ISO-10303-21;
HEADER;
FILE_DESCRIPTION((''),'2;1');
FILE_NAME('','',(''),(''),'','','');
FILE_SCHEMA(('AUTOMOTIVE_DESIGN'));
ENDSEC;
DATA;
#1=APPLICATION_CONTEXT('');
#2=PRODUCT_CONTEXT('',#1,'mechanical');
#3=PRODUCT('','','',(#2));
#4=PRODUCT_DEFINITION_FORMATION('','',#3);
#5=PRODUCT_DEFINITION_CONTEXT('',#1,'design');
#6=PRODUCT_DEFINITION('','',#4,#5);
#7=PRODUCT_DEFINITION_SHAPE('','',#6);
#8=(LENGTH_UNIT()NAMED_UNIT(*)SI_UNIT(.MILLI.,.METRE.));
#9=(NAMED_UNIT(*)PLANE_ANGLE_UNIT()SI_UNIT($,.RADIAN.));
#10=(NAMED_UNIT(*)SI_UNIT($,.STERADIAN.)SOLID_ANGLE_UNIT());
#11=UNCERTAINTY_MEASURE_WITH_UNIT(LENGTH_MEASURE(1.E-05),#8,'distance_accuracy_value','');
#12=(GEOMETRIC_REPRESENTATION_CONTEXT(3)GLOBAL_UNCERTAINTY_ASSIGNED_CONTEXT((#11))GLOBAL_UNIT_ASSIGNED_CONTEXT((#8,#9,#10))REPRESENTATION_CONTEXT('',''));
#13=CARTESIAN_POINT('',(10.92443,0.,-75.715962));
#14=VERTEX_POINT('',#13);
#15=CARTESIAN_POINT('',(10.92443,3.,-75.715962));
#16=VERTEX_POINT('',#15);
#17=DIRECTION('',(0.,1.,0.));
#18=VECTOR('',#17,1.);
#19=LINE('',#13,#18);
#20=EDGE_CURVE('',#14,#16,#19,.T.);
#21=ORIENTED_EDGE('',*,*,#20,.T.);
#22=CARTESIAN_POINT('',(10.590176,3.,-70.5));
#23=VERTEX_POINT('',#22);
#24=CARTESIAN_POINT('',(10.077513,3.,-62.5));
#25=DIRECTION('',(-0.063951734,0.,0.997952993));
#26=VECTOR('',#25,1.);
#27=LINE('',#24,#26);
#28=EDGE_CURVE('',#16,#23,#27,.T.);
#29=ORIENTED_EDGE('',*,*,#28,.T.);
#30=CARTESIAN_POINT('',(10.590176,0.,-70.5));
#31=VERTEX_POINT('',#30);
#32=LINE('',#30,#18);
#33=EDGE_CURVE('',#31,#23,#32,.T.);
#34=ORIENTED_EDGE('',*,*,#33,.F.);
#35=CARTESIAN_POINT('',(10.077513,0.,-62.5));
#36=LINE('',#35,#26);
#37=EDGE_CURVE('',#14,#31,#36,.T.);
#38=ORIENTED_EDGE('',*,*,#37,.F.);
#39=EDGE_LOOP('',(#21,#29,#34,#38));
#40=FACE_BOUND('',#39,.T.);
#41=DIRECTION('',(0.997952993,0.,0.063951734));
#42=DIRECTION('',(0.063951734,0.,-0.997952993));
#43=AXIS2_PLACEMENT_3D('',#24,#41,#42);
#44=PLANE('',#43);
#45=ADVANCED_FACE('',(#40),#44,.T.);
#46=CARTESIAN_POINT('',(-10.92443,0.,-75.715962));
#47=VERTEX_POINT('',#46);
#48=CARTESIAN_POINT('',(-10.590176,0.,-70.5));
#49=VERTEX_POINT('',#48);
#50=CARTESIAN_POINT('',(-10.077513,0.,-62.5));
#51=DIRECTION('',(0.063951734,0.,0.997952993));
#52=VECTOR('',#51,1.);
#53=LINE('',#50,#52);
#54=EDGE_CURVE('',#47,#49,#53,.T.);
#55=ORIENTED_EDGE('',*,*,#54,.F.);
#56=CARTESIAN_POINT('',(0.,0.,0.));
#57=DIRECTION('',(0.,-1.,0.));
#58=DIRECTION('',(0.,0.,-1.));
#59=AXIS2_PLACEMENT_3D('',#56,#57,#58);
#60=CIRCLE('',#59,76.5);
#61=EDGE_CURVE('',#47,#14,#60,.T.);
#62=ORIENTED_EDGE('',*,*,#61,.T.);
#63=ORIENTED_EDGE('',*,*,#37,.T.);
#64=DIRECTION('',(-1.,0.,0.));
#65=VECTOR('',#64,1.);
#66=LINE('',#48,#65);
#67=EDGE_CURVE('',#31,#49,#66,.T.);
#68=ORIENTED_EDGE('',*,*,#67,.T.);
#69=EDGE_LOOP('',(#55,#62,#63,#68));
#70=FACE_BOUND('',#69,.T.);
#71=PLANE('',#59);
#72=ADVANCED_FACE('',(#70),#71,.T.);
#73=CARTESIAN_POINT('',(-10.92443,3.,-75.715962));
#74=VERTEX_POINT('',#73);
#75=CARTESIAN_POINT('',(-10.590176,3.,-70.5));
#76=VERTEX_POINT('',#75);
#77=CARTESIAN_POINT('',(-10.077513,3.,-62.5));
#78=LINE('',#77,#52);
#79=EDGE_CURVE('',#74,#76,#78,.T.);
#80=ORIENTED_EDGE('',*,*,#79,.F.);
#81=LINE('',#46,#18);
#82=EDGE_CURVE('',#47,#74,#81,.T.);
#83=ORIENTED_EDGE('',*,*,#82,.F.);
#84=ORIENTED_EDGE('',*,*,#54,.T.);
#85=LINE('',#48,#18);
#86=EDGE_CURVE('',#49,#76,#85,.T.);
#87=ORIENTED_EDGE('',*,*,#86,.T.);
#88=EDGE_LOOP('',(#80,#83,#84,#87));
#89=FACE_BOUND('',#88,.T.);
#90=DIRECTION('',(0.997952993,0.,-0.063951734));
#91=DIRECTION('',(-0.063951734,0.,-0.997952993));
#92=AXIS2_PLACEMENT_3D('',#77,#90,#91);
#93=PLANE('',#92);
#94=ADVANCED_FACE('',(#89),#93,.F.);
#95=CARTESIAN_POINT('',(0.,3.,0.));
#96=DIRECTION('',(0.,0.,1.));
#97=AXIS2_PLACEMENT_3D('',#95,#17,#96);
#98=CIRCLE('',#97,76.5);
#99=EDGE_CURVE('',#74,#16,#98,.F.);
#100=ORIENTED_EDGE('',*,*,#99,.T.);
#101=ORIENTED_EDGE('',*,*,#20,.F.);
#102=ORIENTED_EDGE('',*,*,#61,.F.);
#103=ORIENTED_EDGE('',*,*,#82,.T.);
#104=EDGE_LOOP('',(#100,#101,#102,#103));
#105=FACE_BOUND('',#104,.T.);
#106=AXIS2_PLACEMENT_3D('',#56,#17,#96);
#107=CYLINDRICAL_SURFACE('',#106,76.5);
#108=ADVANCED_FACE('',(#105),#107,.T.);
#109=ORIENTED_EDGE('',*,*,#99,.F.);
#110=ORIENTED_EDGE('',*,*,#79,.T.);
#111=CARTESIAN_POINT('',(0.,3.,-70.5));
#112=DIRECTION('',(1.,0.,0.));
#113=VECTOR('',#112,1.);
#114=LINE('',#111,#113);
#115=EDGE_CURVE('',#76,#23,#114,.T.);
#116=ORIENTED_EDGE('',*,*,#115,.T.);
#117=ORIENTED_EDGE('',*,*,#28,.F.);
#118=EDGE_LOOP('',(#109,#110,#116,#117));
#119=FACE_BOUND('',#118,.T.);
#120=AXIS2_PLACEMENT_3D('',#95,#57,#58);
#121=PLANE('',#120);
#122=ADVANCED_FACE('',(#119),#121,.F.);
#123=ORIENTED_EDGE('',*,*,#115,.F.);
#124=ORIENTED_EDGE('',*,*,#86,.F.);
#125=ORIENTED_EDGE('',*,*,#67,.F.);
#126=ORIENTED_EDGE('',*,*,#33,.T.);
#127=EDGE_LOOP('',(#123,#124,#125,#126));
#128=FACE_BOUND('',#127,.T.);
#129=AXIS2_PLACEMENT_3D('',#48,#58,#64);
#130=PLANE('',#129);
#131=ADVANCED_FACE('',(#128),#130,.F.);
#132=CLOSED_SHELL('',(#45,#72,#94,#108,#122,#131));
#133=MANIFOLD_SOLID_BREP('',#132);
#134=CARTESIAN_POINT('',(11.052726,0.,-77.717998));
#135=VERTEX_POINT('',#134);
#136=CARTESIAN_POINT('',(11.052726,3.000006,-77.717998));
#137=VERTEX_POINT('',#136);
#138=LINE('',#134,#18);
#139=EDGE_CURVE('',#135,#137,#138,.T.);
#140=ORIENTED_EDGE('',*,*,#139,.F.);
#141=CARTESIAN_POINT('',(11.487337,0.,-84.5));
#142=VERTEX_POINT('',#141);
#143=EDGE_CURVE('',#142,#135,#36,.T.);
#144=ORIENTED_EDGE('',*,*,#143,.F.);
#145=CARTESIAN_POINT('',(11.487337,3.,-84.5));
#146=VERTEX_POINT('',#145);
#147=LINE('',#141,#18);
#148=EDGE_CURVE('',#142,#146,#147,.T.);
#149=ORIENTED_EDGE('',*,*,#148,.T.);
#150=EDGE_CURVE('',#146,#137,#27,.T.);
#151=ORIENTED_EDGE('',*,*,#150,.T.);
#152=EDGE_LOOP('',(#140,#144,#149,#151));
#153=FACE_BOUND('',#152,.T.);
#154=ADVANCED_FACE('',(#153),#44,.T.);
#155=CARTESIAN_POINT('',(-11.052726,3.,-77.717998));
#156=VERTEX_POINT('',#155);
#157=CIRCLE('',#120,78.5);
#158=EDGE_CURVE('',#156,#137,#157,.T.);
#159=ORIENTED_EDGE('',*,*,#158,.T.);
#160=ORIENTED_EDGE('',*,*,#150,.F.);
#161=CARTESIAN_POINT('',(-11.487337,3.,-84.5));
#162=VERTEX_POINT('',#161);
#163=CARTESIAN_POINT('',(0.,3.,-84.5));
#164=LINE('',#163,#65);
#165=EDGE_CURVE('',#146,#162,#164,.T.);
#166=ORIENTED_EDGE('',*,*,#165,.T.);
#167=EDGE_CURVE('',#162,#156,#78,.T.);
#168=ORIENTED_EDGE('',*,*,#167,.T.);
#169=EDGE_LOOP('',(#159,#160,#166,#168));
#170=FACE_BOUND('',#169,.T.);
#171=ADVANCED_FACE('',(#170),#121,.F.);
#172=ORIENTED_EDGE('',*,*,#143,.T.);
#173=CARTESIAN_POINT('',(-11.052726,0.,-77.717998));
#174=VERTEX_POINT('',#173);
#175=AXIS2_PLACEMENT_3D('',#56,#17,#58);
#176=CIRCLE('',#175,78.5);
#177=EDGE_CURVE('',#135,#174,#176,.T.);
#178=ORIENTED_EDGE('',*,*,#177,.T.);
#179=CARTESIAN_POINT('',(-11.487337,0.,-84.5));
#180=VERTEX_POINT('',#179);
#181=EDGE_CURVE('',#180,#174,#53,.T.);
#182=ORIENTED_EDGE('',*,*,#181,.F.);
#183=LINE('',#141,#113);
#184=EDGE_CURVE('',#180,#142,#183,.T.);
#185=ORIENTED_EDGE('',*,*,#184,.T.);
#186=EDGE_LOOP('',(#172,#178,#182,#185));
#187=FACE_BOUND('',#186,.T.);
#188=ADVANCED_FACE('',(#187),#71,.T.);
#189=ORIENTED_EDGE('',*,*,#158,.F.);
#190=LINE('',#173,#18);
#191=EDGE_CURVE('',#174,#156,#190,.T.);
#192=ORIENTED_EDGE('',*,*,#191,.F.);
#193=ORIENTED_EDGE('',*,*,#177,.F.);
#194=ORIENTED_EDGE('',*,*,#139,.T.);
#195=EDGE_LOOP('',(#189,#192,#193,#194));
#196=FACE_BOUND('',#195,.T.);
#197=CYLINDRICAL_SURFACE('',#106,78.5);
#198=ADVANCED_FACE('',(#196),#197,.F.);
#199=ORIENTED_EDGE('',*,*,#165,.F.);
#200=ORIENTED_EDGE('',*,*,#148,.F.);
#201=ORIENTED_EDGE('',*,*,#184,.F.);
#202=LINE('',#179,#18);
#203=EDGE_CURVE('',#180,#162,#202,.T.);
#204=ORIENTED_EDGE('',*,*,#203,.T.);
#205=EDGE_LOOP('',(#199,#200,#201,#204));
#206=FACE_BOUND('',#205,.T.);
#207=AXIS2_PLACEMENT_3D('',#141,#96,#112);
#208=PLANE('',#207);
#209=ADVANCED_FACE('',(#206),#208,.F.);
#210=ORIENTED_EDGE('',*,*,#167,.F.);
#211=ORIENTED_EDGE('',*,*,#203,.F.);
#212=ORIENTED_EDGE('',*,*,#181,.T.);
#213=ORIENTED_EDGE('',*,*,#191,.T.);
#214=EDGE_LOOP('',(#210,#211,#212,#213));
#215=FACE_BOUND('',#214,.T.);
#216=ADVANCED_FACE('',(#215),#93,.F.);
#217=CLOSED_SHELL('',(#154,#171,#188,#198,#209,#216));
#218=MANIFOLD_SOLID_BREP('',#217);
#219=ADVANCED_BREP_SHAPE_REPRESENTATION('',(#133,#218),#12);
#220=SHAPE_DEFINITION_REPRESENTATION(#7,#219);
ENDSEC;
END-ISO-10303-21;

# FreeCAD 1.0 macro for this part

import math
import FreeCAD as App
import Part
import Sketcher
Q = App.Units.Quantity


def add_polygon(sketch, points):
    """Adds a closed chain of lines whose ends are joined by coincident constraints."""
    first, n = sketch.GeometryCount, len(points)
    for a, b in zip(points, points[1:] + points[:1]):
        sketch.addGeometry(Part.LineSegment(App.Vector(*a, 0), App.Vector(*b, 0)), False)
    for i in range(n):
        sketch.addConstraint(Sketcher.Constraint("Coincident", first + i, 2, first + (i + 1) % n, 1))

doc = App.newDocument("Part")
body = doc.addObject("PartDesign::Body", "Body")
body.AllowCompound = True

# Sketch on XZ plane
sketch1 = doc.addObject("Sketcher::SketchObject", "Sketch")
body.addObject(sketch1)
sketch1.AttachmentSupport = (doc.XZ_Plane, [""])
sketch1.MapMode = "FlatFace"
add_polygon(sketch1, [(0, -92), (-12, -92), (-10, -62), (0, -62)])  # lines 0-3
sketch1.addConstraint([
    Sketcher.Constraint("Horizontal", 0),
    Sketcher.Constraint("Horizontal", 2),
    Sketcher.Constraint("Vertical", 3),
    Sketcher.Constraint("PointOnObject", 2, 2, -2),
    Sketcher.Constraint("DistanceX", 0, 2, 0, 1, Q("12 mm")),
    Sketcher.Constraint("DistanceY", 3, 2, 3, 1, Q("30 mm")),
    Sketcher.Constraint("DistanceY", 0, 2, -1, 1, Q("92.5 mm")),
    Sketcher.Constraint("DistanceX", 2, 1, 2, 2, Q("10.077513 mm")),
])
pad1 = doc.addObject("PartDesign::Pad", "Pad")
body.addObject(pad1)
pad1.Profile = sketch1
pad1.Length = 3
pad1.Reversed = True
doc.recompute()

mirrored = doc.addObject("PartDesign::Mirrored", "Mirrored")
body.addObject(mirrored)
mirrored.Originals = [pad1]
mirrored.MirrorPlane = (doc.YZ_Plane, [""])
body.Tip = mirrored

# Sketch on XZ plane
sketch2 = doc.addObject("Sketcher::SketchObject", "Sketch001")
body.addObject(sketch2)
sketch2.AttachmentSupport = (doc.XZ_Plane, [""])
sketch2.MapMode = "FlatFace"
sketch2.AttachmentOffset = App.Placement(App.Vector(0, 0, -3), App.Rotation())
add_polygon(sketch2, [(11, -70), (-11, -70), (-10, -62), (10, -62)])  # lines 0-3
add_polygon(sketch2, [(-11, -84), (11, -84), (12, -92), (-12, -92)])  # lines 4-7
sketch2.addConstraint([
    Sketcher.Constraint("Horizontal", 0),
    Sketcher.Constraint("Horizontal", 2),
    Sketcher.Constraint("Horizontal", 4),
    Sketcher.Constraint("Horizontal", 6),
    Sketcher.Constraint("Parallel", 3, 5),
    Sketcher.Constraint("Parallel", 1, 7),
    Sketcher.Constraint("Equal", 1, 3),
    Sketcher.Constraint("Equal", 3, 5),
    Sketcher.Constraint("DistanceX", 6, 2, 6, 1, Q("24 mm")),
    Sketcher.Constraint("DistanceX", -1, 1, 5, 2, Q("12 mm")),
    Sketcher.Constraint("DistanceY", 0, 2, 1, 2, Q("8 mm")),
    Sketcher.Constraint("DistanceY", 4, 2, 3, 2, Q("14 mm")),
    Sketcher.Constraint("DistanceY", 0, 2, -1, 1, Q("70.5 mm")),
    Sketcher.Constraint("DistanceX", 0, 2, 0, 1, Q("21.180352 mm")),
    Sketcher.Constraint("Distance", 1, Q("8.01641 mm")),
    Sketcher.Constraint("DistanceX", 3, 2, 4, 2, Q("0.897161 mm")),
])
pocket1 = doc.addObject("PartDesign::Pocket", "Pocket")
body.addObject(pocket1)
pocket1.Profile = sketch2
pocket1.Type = "ThroughAll"
pocket1.Midplane = True

# Sketch on XZ plane
sketch3 = doc.addObject("Sketcher::SketchObject", "Sketch002")
body.addObject(sketch3)
sketch3.AttachmentSupport = (doc.XZ_Plane, [""])
sketch3.MapMode = "FlatFace"
sketch3.AttachmentOffset = App.Placement(App.Vector(0, 0, -3), App.Rotation())
sketch3.addGeometry([
    Part.LineSegment(App.Vector(-11.2, -77.7, 0), App.Vector(-10.9, -75.7, 0)),
    Part.ArcOfCircle(Part.Circle(App.Vector(0, 0, 0), App.Vector(0, 0, 1), 76.5), math.radians(-98.21), math.radians(-81.79)),
    Part.LineSegment(App.Vector(10.9, -75.7, 0), App.Vector(11.1, -77.7, 0)),
    Part.ArcOfCircle(Part.Circle(App.Vector(0, 0, 0), App.Vector(0, 0, 1), 78.5), math.radians(-98.2), math.radians(-81.91)),
], False)
sketch3.addConstraint([
    Sketcher.Constraint("Coincident", 0, 2, 1, 1),
    Sketcher.Constraint("Coincident", 1, 2, 2, 1),
    Sketcher.Constraint("Coincident", 2, 2, 3, 2),
    Sketcher.Constraint("Coincident", 3, 1, 0, 1),
    Sketcher.Constraint("Coincident", 1, 3, -1, 1),
    Sketcher.Constraint("Coincident", 3, 3, -1, 1),
    Sketcher.Constraint("Horizontal", 0, 2, 1, 2),
    Sketcher.Constraint("Radius", 1, Q("76.5 mm")),
    Sketcher.Constraint("Radius", 3, Q("78.5 mm")),
    Sketcher.Constraint("DistanceY", 2, 2, -1, 1, Q("77.717998 mm")),
    Sketcher.Constraint("DistanceX", 0, 2, -1, 1, Q("10.92443 mm")),
    Sketcher.Constraint("DistanceY", 3, 1, 0, 2, Q("1.981161 mm")),
])
pocket2 = doc.addObject("PartDesign::Pocket", "Pocket001")
body.addObject(pocket2)
pocket2.Profile = sketch3
pocket2.Type = "ThroughAll"
pocket2.Midplane = True

doc.recompute()
